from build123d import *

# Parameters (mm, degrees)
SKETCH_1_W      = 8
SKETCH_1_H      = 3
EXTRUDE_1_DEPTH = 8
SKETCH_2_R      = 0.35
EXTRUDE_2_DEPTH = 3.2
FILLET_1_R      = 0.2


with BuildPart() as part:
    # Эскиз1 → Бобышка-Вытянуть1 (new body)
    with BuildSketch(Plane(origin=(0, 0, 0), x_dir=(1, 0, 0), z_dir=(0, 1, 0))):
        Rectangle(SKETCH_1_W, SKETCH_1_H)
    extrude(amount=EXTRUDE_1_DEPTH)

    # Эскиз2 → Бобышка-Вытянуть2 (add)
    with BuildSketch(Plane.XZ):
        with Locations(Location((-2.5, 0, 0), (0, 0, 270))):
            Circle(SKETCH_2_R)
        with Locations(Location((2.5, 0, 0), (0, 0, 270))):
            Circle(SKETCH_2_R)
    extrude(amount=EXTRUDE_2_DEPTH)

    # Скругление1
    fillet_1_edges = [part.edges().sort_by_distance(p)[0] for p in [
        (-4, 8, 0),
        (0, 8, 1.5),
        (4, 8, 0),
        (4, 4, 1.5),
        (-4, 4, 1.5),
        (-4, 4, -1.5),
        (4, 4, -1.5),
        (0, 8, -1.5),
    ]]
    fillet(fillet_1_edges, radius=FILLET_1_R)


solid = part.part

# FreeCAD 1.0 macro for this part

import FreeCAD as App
import Part
import Sketcher

V = App.Vector


def edges_at(feature, points):
    """Names of the edges that pass closest to the given points."""
    edges = feature.Shape.Edges
    near = lambda p: min(range(len(edges)), key=lambda i: edges[i].distToShape(Part.Vertex(*p))[0])
    return sorted({f"Edge{near(p) + 1}" for p in points})


def add_polygon(sketch, points):
    """Adds a closed chain of lines whose ends are joined by coincident constraints."""
    first, n = sketch.GeometryCount, len(points)
    for a, b in zip(points, points[1:] + points[:1]):
        sketch.addGeometry(Part.LineSegment(App.Vector(*a, 0), App.Vector(*b, 0)), False)
    for i in range(n):
        sketch.addConstraint(Sketcher.Constraint("Coincident", first + i, 2, first + (i + 1) % n, 1))

doc = App.newDocument("Part")
body = doc.addObject("PartDesign::Body", "Body")

sketch1 = body.newObject("Sketcher::SketchObject", "Sketch")
sketch1.AttachmentSupport = (doc.getObject("XZ_Plane"), [""])
sketch1.MapMode = "FlatFace"
add_polygon(sketch1, [(-4, -1.5), (-4, 1.5), (4, 1.5), (4, -1.5)])
sketch1.addConstraint([
    Sketcher.Constraint("Vertical", 0),
    Sketcher.Constraint("Horizontal", 1),
    Sketcher.Constraint("Vertical", 2),
    Sketcher.Constraint("Horizontal", 3),
    Sketcher.Constraint("Symmetric", 0, 2, 2, 2, -1, 1),
    Sketcher.Constraint("DistanceX", 1, 1, 1, 2, 8.0),
    Sketcher.Constraint("DistanceY", 0, 1, 0, 2, 3.0),
])
pad1 = body.newObject("PartDesign::Pad", "Pad")
pad1.Profile = sketch1
pad1.Length = 8
pad1.Reversed = True

sketch2 = body.newObject("Sketcher::SketchObject", "Sketch001")
sketch2.AttachmentSupport = (doc.getObject("XZ_Plane"), [""])
sketch2.MapMode = "FlatFace"
sketch2.addGeometry([
    Part.Circle(V(-2.5, 0, 0), V(0, 0, 1), 0.35),
    Part.Circle(V(2.5, 0, 0), V(0, 0, 1), 0.35),
], False)
sketch2.addConstraint([
    Sketcher.Constraint("Equal", 0, 1),
    Sketcher.Constraint("Symmetric", 0, 3, 1, 3, -1, 1),
    Sketcher.Constraint("PointOnObject", 0, 3, -1),
    Sketcher.Constraint("Diameter", 0, 0.7),
    Sketcher.Constraint("DistanceX", 0, 3, 1, 3, 5.0),
])
pad2 = body.newObject("PartDesign::Pad", "Pad001")
pad2.Profile = sketch2
pad2.Length = 3.2
doc.recompute()

fillet = body.newObject("PartDesign::Fillet", "Fillet")
fillet.Base = (pad2, edges_at(pad2, [
    (-4, 8, 0),
    (0, 8, 1.5),
    (4, 8, 0),
    (4, 4, 1.5),
    (-4, 4, 1.5),
    (-4, 4, -1.5),
    (4, 4, -1.5),
    (0, 8, -1.5),
]))
fillet.Radius = 0.2

doc.recompute()
